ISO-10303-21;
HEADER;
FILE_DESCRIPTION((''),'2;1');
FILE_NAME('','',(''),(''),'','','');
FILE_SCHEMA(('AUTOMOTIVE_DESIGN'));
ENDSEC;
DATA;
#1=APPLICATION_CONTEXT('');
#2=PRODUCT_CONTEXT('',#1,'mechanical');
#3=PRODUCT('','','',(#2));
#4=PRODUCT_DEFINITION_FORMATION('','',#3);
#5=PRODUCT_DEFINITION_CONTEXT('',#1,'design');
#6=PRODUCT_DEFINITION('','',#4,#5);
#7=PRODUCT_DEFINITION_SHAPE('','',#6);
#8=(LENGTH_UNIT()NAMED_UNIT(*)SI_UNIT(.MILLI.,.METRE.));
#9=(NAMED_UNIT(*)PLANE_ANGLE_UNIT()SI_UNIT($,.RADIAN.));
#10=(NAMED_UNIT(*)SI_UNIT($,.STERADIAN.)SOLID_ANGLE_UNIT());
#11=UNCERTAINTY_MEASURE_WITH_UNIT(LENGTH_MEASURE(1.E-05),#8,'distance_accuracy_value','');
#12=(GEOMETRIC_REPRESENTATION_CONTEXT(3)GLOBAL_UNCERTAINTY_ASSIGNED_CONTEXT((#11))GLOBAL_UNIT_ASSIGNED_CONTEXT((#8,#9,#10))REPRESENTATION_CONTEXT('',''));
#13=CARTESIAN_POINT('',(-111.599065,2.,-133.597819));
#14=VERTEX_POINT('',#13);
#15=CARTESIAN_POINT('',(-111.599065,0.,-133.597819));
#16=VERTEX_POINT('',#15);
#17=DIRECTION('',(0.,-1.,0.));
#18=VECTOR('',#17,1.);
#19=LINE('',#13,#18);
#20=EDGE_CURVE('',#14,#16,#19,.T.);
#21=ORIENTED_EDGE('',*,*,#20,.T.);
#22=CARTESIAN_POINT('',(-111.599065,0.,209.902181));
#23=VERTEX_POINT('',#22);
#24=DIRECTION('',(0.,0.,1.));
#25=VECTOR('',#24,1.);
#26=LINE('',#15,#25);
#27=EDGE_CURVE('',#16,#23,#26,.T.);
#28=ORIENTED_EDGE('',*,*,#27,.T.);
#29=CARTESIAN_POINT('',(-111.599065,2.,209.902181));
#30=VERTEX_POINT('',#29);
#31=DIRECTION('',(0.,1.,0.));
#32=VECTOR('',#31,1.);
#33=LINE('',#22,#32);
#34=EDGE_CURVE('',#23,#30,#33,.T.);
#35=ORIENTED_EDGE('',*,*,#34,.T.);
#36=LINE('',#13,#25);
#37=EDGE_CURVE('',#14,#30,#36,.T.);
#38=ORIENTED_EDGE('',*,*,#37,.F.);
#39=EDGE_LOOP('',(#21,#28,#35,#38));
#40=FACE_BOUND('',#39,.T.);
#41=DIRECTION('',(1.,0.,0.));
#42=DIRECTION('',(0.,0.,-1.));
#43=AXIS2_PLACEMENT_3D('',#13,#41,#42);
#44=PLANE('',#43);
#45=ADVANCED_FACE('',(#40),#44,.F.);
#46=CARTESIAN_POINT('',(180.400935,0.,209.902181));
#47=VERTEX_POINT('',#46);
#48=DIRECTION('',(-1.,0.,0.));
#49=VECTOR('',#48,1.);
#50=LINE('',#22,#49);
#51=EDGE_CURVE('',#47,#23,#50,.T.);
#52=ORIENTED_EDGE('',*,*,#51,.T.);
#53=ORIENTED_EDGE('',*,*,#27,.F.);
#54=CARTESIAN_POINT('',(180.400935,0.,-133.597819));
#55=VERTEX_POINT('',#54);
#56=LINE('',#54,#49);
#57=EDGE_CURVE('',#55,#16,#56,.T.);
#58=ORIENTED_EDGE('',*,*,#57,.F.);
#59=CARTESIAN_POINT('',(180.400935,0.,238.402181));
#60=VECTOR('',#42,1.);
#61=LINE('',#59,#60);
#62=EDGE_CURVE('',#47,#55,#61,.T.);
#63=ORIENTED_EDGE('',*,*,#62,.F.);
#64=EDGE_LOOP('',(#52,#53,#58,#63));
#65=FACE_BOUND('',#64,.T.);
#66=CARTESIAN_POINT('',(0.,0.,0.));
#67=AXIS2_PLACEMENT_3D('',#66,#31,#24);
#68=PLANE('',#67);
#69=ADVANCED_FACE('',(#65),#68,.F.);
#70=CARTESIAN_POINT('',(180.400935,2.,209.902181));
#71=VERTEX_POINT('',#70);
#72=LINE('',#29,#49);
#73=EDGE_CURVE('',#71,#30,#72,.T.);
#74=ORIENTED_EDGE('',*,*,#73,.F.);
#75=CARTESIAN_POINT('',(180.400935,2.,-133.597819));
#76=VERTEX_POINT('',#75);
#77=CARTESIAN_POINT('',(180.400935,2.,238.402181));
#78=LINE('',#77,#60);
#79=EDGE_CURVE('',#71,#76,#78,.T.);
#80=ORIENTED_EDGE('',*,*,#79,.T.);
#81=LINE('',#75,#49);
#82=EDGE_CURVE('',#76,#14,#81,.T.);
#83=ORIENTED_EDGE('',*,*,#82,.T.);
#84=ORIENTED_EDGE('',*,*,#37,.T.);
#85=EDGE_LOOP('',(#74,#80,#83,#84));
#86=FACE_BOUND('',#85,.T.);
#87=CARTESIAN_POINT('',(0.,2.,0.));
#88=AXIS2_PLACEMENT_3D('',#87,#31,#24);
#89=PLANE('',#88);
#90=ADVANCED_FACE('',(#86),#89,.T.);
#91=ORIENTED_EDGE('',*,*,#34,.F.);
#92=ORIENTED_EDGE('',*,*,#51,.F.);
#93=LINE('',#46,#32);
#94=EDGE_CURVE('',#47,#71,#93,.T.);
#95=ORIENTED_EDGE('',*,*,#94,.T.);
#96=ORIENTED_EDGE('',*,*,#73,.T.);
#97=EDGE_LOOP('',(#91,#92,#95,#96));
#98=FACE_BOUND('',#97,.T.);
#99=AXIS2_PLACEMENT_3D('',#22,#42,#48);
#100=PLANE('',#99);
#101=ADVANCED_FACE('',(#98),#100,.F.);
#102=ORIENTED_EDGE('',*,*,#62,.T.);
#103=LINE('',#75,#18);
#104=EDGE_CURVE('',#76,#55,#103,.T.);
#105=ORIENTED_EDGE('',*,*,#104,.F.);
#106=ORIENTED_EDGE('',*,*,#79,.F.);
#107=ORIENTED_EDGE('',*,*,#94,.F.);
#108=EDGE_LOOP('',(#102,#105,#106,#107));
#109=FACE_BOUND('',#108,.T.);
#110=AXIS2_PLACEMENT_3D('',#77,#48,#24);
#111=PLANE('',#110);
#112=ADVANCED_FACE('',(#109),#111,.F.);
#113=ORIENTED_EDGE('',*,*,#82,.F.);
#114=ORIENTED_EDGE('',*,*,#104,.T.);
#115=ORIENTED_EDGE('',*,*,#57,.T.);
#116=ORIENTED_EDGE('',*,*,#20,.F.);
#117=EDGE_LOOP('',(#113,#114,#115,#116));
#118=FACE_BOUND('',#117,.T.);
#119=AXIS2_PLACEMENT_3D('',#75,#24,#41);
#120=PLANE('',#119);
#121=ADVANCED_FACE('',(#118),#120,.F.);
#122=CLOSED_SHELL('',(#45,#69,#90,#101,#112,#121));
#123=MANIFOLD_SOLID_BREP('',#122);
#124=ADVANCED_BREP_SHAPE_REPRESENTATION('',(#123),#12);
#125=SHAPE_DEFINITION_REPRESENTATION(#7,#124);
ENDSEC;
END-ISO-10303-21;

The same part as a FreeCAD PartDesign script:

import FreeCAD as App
import Part
import Sketcher
from FreeCAD import Vector
Q = App.Units.Quantity

doc = App.newDocument("Part")
body = doc.addObject("PartDesign::Body", "Body")

# Sketch on XZ plane
sketch1 = body.newObject("Sketcher::SketchObject", "Sketch")
sketch1.AttachmentSupport = (doc.getObject("XZ_Plane"), [""])
sketch1.MapMode = "FlatFace"
sketch1.addGeometry([
    Part.LineSegment(Vector(-111.599065, -133.597819, 0), Vector(-111.599065, 238.402181, 0)),
    Part.LineSegment(Vector(-111.599065, 238.402181, 0), Vector(180.400935, 238.402181, 0)),
    Part.LineSegment(Vector(180.400935, 238.402181, 0), Vector(180.400935, -133.597819, 0)),
    Part.LineSegment(Vector(180.400935, -133.597819, 0), Vector(-111.599065, -133.597819, 0)),
], False)
sketch1.addConstraint([
    Sketcher.Constraint("Coincident", 0, 2, 1, 1),
    Sketcher.Constraint("Coincident", 1, 2, 2, 1),
    Sketcher.Constraint("Coincident", 2, 2, 3, 1),
    Sketcher.Constraint("Coincident", 3, 2, 0, 1),
    Sketcher.Constraint("Vertical", 0),
    Sketcher.Constraint("Horizontal", 1),
    Sketcher.Constraint("Vertical", 2),
    Sketcher.Constraint("Horizontal", 3),
    Sketcher.Constraint("DistanceX", 1, 1, 1, 2, Q("292 mm")),
    Sketcher.Constraint("DistanceY", 0, 1, 0, 2, Q("372 mm")),
    Sketcher.Constraint("DistanceY", -1, 1, 0, 2, Q("238.402181 mm")),
    Sketcher.Constraint("DistanceX", 0, 2, -1, 1, Q("111.599065 mm")),
])
pad1 = body.newObject("PartDesign::Pad", "Pad")
pad1.Profile = sketch1
pad1.Length = 2
pad1.Reversed = True

# Sketch on XZ plane
sketch2 = body.newObject("Sketcher::SketchObject", "Sketch001")
sketch2.AttachmentSupport = (doc.getObject("XZ_Plane"), [""])
sketch2.MapMode = "FlatFace"
sketch2.AttachmentOffset = App.Placement(Vector(0, 0, -2), App.Rotation())
sketch2.addGeometry([
    Part.LineSegment(Vector(-111.599065, 209.902181, 0), Vector(-111.599065, 238.402181, 0)),
    Part.LineSegment(Vector(-111.599065, 238.402181, 0), Vector(180.400935, 238.402181, 0)),
    Part.LineSegment(Vector(180.400935, 238.402181, 0), Vector(180.400935, 209.902181, 0)),
    Part.LineSegment(Vector(180.400935, 209.902181, 0), Vector(-111.599065, 209.902181, 0)),
], False)
sketch2.addConstraint([
    Sketcher.Constraint("Coincident", 0, 2, 1, 1),
    Sketcher.Constraint("Coincident", 1, 2, 2, 1),
    Sketcher.Constraint("Coincident", 2, 2, 3, 1),
    Sketcher.Constraint("Coincident", 3, 2, 0, 1),
    Sketcher.Constraint("Vertical", 0),
    Sketcher.Constraint("Horizontal", 1),
    Sketcher.Constraint("Vertical", 2),
    Sketcher.Constraint("Horizontal", 3),
    Sketcher.Constraint("DistanceX", 1, 1, 1, 2, Q("292 mm")),
    Sketcher.Constraint("DistanceY", 0, 1, 0, 2, Q("28.5 mm")),
    Sketcher.Constraint("DistanceY", -1, 1, 0, 2, Q("238.402181 mm")),
    Sketcher.Constraint("DistanceX", 0, 2, -1, 1, Q("111.599065 mm")),
])
pocket1 = body.newObject("PartDesign::Pocket", "Pocket")
pocket1.Profile = sketch2
pocket1.Length = 2
pocket1.Reversed = True

doc.recompute()
